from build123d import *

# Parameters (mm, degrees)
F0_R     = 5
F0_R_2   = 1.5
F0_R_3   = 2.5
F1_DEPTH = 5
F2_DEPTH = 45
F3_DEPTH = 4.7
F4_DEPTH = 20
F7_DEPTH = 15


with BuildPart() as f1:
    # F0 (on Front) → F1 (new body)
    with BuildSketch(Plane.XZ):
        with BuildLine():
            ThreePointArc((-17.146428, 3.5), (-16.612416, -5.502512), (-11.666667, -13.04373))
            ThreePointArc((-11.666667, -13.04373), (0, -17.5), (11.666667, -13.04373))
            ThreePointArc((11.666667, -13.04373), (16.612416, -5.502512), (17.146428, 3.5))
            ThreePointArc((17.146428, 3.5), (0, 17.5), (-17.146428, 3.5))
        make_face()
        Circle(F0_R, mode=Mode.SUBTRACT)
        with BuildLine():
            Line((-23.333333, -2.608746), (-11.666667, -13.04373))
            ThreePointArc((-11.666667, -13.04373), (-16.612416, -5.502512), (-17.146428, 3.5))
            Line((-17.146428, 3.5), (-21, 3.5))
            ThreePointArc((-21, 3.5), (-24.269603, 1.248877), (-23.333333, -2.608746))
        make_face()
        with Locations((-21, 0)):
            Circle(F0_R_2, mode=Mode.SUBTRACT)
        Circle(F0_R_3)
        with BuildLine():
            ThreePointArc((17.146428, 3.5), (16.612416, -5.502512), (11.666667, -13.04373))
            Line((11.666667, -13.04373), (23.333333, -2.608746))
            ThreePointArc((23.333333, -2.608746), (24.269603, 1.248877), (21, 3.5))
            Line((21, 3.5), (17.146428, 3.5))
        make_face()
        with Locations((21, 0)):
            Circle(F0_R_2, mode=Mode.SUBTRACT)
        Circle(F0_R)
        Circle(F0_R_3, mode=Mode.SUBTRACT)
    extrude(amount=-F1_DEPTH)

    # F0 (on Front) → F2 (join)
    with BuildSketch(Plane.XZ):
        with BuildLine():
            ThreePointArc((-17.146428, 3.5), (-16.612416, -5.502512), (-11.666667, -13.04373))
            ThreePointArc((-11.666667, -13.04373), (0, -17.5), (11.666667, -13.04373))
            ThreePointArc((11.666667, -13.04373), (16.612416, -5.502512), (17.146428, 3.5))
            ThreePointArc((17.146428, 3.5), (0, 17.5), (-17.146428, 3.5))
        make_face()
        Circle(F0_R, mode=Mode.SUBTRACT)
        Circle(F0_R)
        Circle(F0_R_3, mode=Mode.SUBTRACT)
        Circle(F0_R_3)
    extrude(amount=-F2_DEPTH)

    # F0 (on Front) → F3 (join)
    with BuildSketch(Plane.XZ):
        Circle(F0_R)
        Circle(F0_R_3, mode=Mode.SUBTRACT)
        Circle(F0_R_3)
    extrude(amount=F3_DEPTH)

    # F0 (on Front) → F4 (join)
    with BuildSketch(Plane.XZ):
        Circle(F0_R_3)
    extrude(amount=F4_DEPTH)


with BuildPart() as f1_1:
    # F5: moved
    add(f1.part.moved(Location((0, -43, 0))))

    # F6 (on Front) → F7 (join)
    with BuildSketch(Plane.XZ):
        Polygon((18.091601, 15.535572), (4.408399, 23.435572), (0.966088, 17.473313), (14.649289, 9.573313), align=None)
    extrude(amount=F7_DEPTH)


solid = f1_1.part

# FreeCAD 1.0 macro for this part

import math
import FreeCAD as App
import Part
import Sketcher

V = App.Vector
Q = App.Units.Quantity

doc = App.newDocument("Part")
body = doc.addObject("PartDesign::Body", "Body")

sketch1 = body.newObject("Sketcher::SketchObject", "Sketch")
sketch1.AttachmentSupport = (doc.getObject("XZ_Plane"), [""])
sketch1.MapMode = "FlatFace"
sketch1.addGeometry([
    Part.ArcOfCircle(Part.Circle(V(0, 0, 0), V(0, 0, 1), 17.5), math.radians(12), math.radians(168)),
    Part.LineSegment(V(-17.1, 3.5, 0), V(-21, 3.5, 0)),
    Part.ArcOfCircle(Part.Circle(V(-21, 0, 0), V(0, 0, 1), 3.5), math.radians(90), math.radians(228)),
    Part.LineSegment(V(-23.3, -2.6, 0), V(-11.7, -13, 0)),
    Part.ArcOfCircle(Part.Circle(V(0, 0, 0), V(0, 0, 1), 17.5), math.radians(-132), math.radians(-48)),
    Part.LineSegment(V(11.7, -13, 0), V(23.3, -2.6, 0)),
    Part.ArcOfCircle(Part.Circle(V(21, 0, 0), V(0, 0, 1), 3.5), math.radians(-48), math.radians(90)),
    Part.LineSegment(V(21, 3.5, 0), V(17.1, 3.5, 0)),
    Part.Circle(V(-21, 0, 0), V(0, 0, 1), 1.5),
    Part.Circle(V(0, 0, 0), V(0, 0, 1), 2.5),
    Part.Circle(V(21, 0, 0), V(0, 0, 1), 1.5),
], False)
sketch1.addConstraint([
    Sketcher.Constraint("Coincident", 0, 2, 1, 1),
    Sketcher.Constraint("Tangent", 1, 2, 2, 1),
    Sketcher.Constraint("Tangent", 2, 2, 3, 1),
    Sketcher.Constraint("Tangent", 3, 2, 4, 1),
    Sketcher.Constraint("Tangent", 4, 2, 5, 1),
    Sketcher.Constraint("Tangent", 5, 2, 6, 1),
    Sketcher.Constraint("Tangent", 6, 2, 7, 1),
    Sketcher.Constraint("Coincident", 7, 2, 0, 1),
    Sketcher.Constraint("Horizontal", 1),
    Sketcher.Constraint("Horizontal", 7),
    Sketcher.Constraint("Coincident", 0, 3, -1, 1),
    Sketcher.Constraint("Coincident", 4, 3, -1, 1),
    Sketcher.Constraint("Coincident", 9, 3, -1, 1),
    Sketcher.Constraint("Coincident", 8, 3, 2, 3),
    Sketcher.Constraint("Coincident", 10, 3, 6, 3),
    Sketcher.Constraint("Equal", 0, 4),
    Sketcher.Constraint("Equal", 2, 6),
    Sketcher.Constraint("Equal", 8, 10),
    Sketcher.Constraint("Symmetric", 2, 3, 6, 3, -1, 1),
    Sketcher.Constraint("PointOnObject", 2, 3, -1),
    Sketcher.Constraint("Diameter", 8, 3.0),
    Sketcher.Constraint("Diameter", 9, 5.0),
    Sketcher.Constraint("Radius", 0, 17.5),
    Sketcher.Constraint("Radius", 2, 3.5),
    Sketcher.Constraint("DistanceX", 2, 3, -1, 1, 21.0),
])
pad1 = body.newObject("PartDesign::Pad", "Pad")
pad1.Profile = sketch1
pad1.Length = 5
pad1.Reversed = True

sketch2 = body.newObject("Sketcher::SketchObject", "Sketch001")
sketch2.AttachmentSupport = (doc.getObject("XZ_Plane"), [""])
sketch2.MapMode = "FlatFace"
sketch2.addGeometry([
    Part.ArcOfCircle(Part.Circle(V(0, 0, 0), V(0, 0, 1), 17), math.radians(168), math.radians(228)),
    Part.ArcOfCircle(Part.Circle(V(0, 0, 0), V(0, 0, 1), 18), math.radians(-132), math.radians(-48)),
    Part.ArcOfCircle(Part.Circle(V(0, 0, 0), V(0, 0, 1), 17), math.radians(-48), math.radians(12)),
    Part.ArcOfCircle(Part.Circle(V(0, 0, 0), V(0, 0, 1), 17), math.radians(12), math.radians(168)),
], False)
sketch2.addConstraint([
    Sketcher.Constraint("Tangent", 0, 2, 1, 1),
    Sketcher.Constraint("Tangent", 1, 2, 2, 1),
    Sketcher.Constraint("Tangent", 2, 2, 3, 1),
    Sketcher.Constraint("Tangent", 3, 2, 0, 1),
    Sketcher.Constraint("Coincident", 0, 3, -1, 1),
    Sketcher.Constraint("Equal", 0, 1),
    Sketcher.Constraint("Horizontal", 0, 2, 1, 2),
    Sketcher.Constraint("Horizontal", 2, 2, 3, 2),
    Sketcher.Constraint("Radius", 0, 17.5),
    Sketcher.Constraint("DistanceY", -1, 1, 2, 2, 3.5),
    Sketcher.Constraint("DistanceY", 0, 2, -1, 1, 13.04373),
])
pad2 = body.newObject("PartDesign::Pad", "Pad001")
pad2.Profile = sketch2
pad2.Length = 45
pad2.Reversed = True

sketch3 = body.newObject("Sketcher::SketchObject", "Sketch002")
sketch3.AttachmentSupport = (doc.getObject("XZ_Plane"), [""])
sketch3.MapMode = "FlatFace"
sketch3.addGeometry(Part.Circle(V(0, 0, 0), V(0, 0, 1), 5), False)
sketch3.addConstraint([
    Sketcher.Constraint("Coincident", 0, 3, -1, 1),
    Sketcher.Constraint("Diameter", 0, 10.0),
])
pad3 = body.newObject("PartDesign::Pad", "Pad002")
pad3.Profile = sketch3
pad3.Length = 4.7

sketch4 = body.newObject("Sketcher::SketchObject", "Sketch003")
sketch4.AttachmentSupport = (doc.getObject("XZ_Plane"), [""])
sketch4.MapMode = "FlatFace"
sketch4.addGeometry(Part.Circle(V(0, 0, 0), V(0, 0, 1), 2.5), False)
sketch4.addConstraint([
    Sketcher.Constraint("Coincident", 0, 3, -1, 1),
    Sketcher.Constraint("Diameter", 0, 5.0),
])
pad4 = body.newObject("PartDesign::Pad", "Pad003")
pad4.Profile = sketch4
pad4.Length = 20
body2 = doc.addObject("PartDesign::Body", "Body001")
doc.recompute()

body.Placement = App.Placement(V(0, -43, 0), App.Rotation(V(0, 0, 1), 0))
boolean = body2.newObject("PartDesign::Boolean", "Boolean")
boolean.Type = "Fuse"
boolean.addObjects([body])

sketch5 = body2.newObject("Sketcher::SketchObject", "Sketch004")
sketch5.AttachmentSupport = (doc.getObject("XZ_Plane001"), [""])
sketch5.MapMode = "FlatFace"
sketch5.addGeometry([
    Part.LineSegment(V(18, 16, 0), V(4, 23, 0)),
    Part.LineSegment(V(4, 23, 0), V(1, 17, 0)),
    Part.LineSegment(V(1, 17, 0), V(15, 10, 0)),
    Part.LineSegment(V(15, 10, 0), V(18, 16, 0)),
], False)
sketch5.addConstraint([
    Sketcher.Constraint("Coincident", 0, 2, 1, 1),
    Sketcher.Constraint("Coincident", 1, 2, 2, 1),
    Sketcher.Constraint("Coincident", 2, 2, 3, 1),
    Sketcher.Constraint("Coincident", 3, 2, 0, 1),
    Sketcher.Constraint("Perpendicular", 0, 1),
    Sketcher.Constraint("Perpendicular", 1, 2),
    Sketcher.Constraint("Perpendicular", 2, 3),
    Sketcher.Constraint("Angle", 0, Q("150.000001 deg")),
    Sketcher.Constraint("Distance", 0, 15.800001),
    Sketcher.Constraint("DistanceX", -1, 1, 0, 2, 4.408399),
    Sketcher.Constraint("DistanceX", -1, 1, 2, 2, 14.649289),
    Sketcher.Constraint("DistanceY", -1, 1, 0, 2, 23.435572),
])
pad5 = body2.newObject("PartDesign::Pad", "Pad004")
pad5.Profile = sketch5
pad5.Length = 15

doc.recompute()
